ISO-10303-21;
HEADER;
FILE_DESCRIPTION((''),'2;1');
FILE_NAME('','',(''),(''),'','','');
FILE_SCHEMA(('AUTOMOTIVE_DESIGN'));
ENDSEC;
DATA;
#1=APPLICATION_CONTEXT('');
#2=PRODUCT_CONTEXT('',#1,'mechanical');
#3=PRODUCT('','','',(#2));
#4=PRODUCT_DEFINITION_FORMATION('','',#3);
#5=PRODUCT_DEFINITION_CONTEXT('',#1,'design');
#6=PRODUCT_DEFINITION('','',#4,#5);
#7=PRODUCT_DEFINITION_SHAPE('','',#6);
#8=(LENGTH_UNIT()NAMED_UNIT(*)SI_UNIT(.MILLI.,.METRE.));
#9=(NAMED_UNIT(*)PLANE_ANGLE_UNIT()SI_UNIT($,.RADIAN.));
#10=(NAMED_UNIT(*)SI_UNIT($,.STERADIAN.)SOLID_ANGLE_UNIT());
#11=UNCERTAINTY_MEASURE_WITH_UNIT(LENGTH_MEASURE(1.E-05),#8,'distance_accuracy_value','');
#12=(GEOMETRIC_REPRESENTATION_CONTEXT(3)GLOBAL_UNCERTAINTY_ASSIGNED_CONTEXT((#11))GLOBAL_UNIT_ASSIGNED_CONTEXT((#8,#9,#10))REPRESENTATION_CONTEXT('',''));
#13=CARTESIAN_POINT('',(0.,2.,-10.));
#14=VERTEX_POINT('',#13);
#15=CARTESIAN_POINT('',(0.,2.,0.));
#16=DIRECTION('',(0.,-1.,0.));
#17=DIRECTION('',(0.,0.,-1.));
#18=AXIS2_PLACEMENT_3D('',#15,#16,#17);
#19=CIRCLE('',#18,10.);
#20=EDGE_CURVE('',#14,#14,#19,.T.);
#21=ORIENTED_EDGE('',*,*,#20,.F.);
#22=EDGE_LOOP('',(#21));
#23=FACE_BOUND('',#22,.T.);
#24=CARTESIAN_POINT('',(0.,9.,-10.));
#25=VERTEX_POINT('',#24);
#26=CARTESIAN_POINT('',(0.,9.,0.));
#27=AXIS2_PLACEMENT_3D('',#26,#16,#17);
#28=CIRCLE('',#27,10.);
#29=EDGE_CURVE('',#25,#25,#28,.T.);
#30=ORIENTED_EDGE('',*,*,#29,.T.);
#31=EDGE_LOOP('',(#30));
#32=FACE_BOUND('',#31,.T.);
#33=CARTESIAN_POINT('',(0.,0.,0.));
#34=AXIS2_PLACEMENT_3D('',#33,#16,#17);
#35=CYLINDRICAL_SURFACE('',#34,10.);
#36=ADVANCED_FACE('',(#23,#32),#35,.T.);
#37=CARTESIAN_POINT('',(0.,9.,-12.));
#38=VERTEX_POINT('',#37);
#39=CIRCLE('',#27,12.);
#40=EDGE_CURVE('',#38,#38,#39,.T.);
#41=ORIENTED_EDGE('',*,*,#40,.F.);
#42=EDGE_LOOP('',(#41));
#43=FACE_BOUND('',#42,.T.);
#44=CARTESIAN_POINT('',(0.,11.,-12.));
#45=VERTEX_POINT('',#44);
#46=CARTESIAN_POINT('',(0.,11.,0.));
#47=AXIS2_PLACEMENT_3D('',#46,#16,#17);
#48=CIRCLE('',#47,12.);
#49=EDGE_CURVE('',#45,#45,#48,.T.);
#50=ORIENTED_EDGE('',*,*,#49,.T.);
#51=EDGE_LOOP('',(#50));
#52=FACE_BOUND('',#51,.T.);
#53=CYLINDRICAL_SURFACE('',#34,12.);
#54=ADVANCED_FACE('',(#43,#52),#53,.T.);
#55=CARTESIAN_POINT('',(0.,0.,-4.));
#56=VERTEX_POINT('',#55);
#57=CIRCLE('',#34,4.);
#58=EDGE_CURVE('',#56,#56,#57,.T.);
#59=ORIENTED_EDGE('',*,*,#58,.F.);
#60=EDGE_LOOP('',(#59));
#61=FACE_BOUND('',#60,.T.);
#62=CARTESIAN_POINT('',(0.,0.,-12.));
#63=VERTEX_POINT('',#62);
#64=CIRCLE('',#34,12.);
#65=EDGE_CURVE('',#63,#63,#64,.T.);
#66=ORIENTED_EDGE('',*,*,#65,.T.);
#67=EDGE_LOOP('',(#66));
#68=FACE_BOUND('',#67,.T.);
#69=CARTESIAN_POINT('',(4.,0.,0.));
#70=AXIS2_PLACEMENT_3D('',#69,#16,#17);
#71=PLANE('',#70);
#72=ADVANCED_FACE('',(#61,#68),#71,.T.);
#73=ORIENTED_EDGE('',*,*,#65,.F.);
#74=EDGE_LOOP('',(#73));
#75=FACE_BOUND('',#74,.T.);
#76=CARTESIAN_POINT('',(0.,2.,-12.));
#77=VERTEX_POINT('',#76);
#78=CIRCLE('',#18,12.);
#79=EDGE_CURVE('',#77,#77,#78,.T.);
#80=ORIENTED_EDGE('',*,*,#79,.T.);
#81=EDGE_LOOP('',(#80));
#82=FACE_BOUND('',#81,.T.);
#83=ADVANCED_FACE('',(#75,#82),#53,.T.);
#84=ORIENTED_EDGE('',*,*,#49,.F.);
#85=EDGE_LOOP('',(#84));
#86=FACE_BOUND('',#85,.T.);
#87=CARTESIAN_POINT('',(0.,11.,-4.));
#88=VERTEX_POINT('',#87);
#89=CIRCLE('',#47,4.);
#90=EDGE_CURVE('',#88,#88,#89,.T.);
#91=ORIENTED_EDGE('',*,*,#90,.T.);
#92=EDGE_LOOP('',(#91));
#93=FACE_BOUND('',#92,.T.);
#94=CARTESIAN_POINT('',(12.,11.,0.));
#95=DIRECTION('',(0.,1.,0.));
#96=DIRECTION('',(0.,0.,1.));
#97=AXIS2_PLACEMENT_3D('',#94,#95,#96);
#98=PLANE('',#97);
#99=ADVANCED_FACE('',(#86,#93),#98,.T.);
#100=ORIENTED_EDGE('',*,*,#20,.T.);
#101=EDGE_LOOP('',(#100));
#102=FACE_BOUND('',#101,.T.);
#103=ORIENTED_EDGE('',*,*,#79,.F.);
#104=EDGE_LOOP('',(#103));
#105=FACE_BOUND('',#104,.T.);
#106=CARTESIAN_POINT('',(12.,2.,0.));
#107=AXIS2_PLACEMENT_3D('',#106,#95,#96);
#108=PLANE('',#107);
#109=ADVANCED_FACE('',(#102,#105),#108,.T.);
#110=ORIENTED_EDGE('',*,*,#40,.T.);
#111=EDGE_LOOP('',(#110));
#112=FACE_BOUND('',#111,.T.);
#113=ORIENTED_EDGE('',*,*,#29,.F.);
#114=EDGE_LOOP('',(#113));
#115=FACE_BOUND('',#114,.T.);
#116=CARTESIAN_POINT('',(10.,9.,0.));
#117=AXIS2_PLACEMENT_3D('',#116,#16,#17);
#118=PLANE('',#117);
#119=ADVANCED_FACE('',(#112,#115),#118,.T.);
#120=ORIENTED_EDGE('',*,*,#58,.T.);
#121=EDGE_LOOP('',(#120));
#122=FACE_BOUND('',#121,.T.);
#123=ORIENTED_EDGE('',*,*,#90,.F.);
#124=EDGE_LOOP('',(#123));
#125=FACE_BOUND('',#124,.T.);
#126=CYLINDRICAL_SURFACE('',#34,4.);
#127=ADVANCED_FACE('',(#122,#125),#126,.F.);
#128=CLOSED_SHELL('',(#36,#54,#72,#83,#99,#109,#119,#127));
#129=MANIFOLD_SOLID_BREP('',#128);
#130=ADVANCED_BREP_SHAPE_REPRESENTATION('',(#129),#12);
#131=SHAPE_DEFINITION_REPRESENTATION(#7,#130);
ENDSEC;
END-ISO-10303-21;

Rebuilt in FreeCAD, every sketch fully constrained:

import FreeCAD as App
import Part
import Sketcher
from FreeCAD import Vector


def add_polygon(sketch, points):
    """Adds a closed chain of lines whose ends are joined by coincident constraints."""
    first, n = sketch.GeometryCount, len(points)
    for a, b in zip(points, points[1:] + points[:1]):
        sketch.addGeometry(Part.LineSegment(App.Vector(*a, 0), App.Vector(*b, 0)), False)
    for i in range(n):
        sketch.addConstraint(Sketcher.Constraint("Coincident", first + i, 2, first + (i + 1) % n, 1))

doc = App.newDocument("Part")
body = doc.addObject("PartDesign::Body", "Body")

# Sketch on XY plane
sketch1 = body.newObject("Sketcher::SketchObject", "Sketch")
sketch1.AttachmentSupport = (doc.getObject("XY_Plane"), [""])
sketch1.MapMode = "FlatFace"
add_polygon(sketch1, [(4, 11), (4, 0), (12, 0), (12, 2), (10, 2), (10, 9), (12, 9), (12, 11)])  # lines 0-7
sketch1.addConstraint([
    Sketcher.Constraint("Vertical", 0),
    Sketcher.Constraint("Horizontal", 1),
    Sketcher.Constraint("Vertical", 2),
    Sketcher.Constraint("Horizontal", 3),
    Sketcher.Constraint("Vertical", 4),
    Sketcher.Constraint("Horizontal", 5),
    Sketcher.Constraint("Vertical", 6),
    Sketcher.Constraint("Horizontal", 7),
    Sketcher.Constraint("PointOnObject", 0, 2, -1),
    Sketcher.Constraint("Vertical", 2, 2, 5, 2),
    Sketcher.Constraint("Equal", 5, 2),
    Sketcher.Constraint("Equal", 2, 6),
    Sketcher.Constraint("DistanceX", 1, 1, 1, 2, 8.0),
    Sketcher.Constraint("DistanceX", 3, 2, 3, 1, 2.0),
    Sketcher.Constraint("DistanceY", 0, 2, 0, 1, 11.0),
    Sketcher.Constraint("DistanceX", -1, 1, 0, 2, 4.0),
])
revolution = body.newObject("PartDesign::Revolution", "Revolution")
revolution.Profile = sketch1
revolution.ReferenceAxis = (sketch1, ["V_Axis"])
revolution.Angle = 360

doc.recompute()
